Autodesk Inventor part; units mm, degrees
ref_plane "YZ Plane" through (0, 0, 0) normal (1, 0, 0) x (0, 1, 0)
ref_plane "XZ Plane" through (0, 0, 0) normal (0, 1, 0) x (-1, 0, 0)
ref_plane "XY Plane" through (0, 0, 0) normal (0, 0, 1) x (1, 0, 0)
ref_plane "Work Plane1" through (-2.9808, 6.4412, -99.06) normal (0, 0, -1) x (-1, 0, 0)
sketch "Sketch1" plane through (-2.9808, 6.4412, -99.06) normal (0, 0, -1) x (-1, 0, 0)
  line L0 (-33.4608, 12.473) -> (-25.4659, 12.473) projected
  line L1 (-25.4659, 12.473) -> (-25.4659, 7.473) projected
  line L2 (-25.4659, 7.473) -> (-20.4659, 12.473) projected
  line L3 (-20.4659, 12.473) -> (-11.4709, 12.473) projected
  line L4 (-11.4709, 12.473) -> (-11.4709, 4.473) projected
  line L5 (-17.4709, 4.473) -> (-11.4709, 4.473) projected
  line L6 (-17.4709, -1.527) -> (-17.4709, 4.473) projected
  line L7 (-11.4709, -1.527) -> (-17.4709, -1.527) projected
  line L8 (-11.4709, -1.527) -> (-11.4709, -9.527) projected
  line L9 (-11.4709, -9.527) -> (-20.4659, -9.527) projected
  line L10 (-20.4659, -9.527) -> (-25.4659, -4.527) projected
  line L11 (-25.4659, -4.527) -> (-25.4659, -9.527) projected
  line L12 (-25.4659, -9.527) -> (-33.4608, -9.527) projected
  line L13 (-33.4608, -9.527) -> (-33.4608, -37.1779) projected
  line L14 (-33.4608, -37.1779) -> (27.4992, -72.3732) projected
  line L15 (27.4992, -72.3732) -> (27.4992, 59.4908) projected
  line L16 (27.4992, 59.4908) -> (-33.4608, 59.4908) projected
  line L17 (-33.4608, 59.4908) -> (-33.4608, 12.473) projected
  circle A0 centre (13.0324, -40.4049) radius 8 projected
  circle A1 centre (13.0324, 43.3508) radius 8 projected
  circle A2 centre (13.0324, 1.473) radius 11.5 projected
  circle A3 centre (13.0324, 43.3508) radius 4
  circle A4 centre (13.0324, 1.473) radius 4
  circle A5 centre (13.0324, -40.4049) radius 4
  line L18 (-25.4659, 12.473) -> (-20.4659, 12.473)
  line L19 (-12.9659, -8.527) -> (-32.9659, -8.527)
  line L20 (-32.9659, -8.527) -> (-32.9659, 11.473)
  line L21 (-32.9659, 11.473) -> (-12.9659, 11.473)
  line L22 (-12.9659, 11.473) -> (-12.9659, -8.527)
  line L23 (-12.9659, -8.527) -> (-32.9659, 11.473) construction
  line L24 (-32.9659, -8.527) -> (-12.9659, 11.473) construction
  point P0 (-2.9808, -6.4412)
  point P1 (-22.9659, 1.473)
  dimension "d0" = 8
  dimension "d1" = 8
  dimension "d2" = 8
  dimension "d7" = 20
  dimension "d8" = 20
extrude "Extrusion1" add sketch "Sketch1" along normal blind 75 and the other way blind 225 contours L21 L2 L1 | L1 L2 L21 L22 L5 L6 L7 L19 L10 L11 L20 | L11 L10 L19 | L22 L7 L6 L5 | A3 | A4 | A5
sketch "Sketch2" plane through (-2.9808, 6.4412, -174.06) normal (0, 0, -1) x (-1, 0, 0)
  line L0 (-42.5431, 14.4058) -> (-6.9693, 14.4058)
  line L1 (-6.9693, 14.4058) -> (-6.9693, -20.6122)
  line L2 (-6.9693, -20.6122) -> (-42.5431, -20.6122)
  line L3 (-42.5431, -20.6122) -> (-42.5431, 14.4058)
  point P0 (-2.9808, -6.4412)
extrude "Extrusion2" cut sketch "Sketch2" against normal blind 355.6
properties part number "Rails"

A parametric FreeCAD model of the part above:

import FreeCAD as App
import Part
import Sketcher
from FreeCAD import Vector


def add_polygon(sketch, points):
    """Adds a closed chain of lines whose ends are joined by coincident constraints."""
    first, n = sketch.GeometryCount, len(points)
    for a, b in zip(points, points[1:] + points[:1]):
        sketch.addGeometry(Part.LineSegment(App.Vector(*a, 0), App.Vector(*b, 0)), False)
    for i in range(n):
        sketch.addConstraint(Sketcher.Constraint("Coincident", first + i, 2, first + (i + 1) % n, 1))

doc = App.newDocument("Part")
body = doc.addObject("PartDesign::Body", "Body")
body.AllowCompound = True

sketch1 = body.newObject("Sketcher::SketchObject", "Sketch")
sketch1.AttachmentSupport = (doc.getObject("XY_Plane"), [""])
sketch1.MapMode = "FlatFace"
sketch1.AttachmentOffset = App.Placement(Vector(0, 0, -99.06), App.Rotation())
add_polygon(sketch1, [(30, 17.9), (30, -2.1), (10, -2.1), (10, 17.9)])
sketch1.addGeometry(Part.Circle(Vector(-16, 49.8, 0), Vector(0, 0, 1), 4), False)
sketch1.addGeometry(Part.Circle(Vector(-16, 7.9, 0), Vector(0, 0, 1), 4), False)
sketch1.addGeometry(Part.Circle(Vector(-16, -34, 0), Vector(0, 0, 1), 4), False)
sketch1.addConstraint([
    Sketcher.Constraint("Vertical", 0),
    Sketcher.Constraint("Horizontal", 1),
    Sketcher.Constraint("Vertical", 2),
    Sketcher.Constraint("Horizontal", 3),
    Sketcher.Constraint("Equal", 4, 5),
    Sketcher.Constraint("Equal", 5, 6),
    Sketcher.Constraint("Vertical", 4, 3, 5, 3),
    Sketcher.Constraint("Vertical", 5, 3, 6, 3),
    Sketcher.Constraint("Equal", 3, 0),
    Sketcher.Constraint("Diameter", 4, 8.0),
    Sketcher.Constraint("DistanceX", 1, 2, 1, 1, 20.0),
    Sketcher.Constraint("DistanceY", 0, 2, 5, 3, 10.0),
    Sketcher.Constraint("DistanceY", -1, 1, 4, 3, 49.792),
    Sketcher.Constraint("DistanceX", -1, 1, 0, 2, 29.985),
    Sketcher.Constraint("DistanceY", 6, 3, 5, 3, 41.878),
    Sketcher.Constraint("DistanceX", 4, 3, -1, 1, 16.0132),
    Sketcher.Constraint("DistanceY", -1, 1, 5, 3, 7.9142),
])
pad1 = body.newObject("PartDesign::Pad", "Pad")
pad1.Profile = sketch1
pad1.Type = "TwoLengths"
pad1.Length = 75
pad1.Length2 = 225
pad1.Reversed = True

sketch2 = body.newObject("Sketcher::SketchObject", "Sketch001")
sketch2.AttachmentSupport = (doc.getObject("XY_Plane"), [""])
sketch2.MapMode = "FlatFace"
sketch2.AttachmentOffset = App.Placement(Vector(0, 0, -174.06), App.Rotation())
add_polygon(sketch2, [(4, 21), (40, 21), (40, -14), (4, -14)])
sketch2.addConstraint([
    Sketcher.Constraint("Horizontal", 0),
    Sketcher.Constraint("Vertical", 1),
    Sketcher.Constraint("Horizontal", 2),
    Sketcher.Constraint("Vertical", 3),
    Sketcher.Constraint("DistanceY", 1, 2, 1, 1, 35.018),
    Sketcher.Constraint("DistanceX", 0, 1, 0, 2, 35.5738),
    Sketcher.Constraint("DistanceY", -1, 1, 0, 2, 20.847),
    Sketcher.Constraint("DistanceX", -1, 1, 0, 2, 39.5623),
])
pocket1 = body.newObject("PartDesign::Pocket", "Pocket")
pocket1.Profile = sketch2
pocket1.Length = 355.6
pocket1.Reversed = True

doc.recompute()
